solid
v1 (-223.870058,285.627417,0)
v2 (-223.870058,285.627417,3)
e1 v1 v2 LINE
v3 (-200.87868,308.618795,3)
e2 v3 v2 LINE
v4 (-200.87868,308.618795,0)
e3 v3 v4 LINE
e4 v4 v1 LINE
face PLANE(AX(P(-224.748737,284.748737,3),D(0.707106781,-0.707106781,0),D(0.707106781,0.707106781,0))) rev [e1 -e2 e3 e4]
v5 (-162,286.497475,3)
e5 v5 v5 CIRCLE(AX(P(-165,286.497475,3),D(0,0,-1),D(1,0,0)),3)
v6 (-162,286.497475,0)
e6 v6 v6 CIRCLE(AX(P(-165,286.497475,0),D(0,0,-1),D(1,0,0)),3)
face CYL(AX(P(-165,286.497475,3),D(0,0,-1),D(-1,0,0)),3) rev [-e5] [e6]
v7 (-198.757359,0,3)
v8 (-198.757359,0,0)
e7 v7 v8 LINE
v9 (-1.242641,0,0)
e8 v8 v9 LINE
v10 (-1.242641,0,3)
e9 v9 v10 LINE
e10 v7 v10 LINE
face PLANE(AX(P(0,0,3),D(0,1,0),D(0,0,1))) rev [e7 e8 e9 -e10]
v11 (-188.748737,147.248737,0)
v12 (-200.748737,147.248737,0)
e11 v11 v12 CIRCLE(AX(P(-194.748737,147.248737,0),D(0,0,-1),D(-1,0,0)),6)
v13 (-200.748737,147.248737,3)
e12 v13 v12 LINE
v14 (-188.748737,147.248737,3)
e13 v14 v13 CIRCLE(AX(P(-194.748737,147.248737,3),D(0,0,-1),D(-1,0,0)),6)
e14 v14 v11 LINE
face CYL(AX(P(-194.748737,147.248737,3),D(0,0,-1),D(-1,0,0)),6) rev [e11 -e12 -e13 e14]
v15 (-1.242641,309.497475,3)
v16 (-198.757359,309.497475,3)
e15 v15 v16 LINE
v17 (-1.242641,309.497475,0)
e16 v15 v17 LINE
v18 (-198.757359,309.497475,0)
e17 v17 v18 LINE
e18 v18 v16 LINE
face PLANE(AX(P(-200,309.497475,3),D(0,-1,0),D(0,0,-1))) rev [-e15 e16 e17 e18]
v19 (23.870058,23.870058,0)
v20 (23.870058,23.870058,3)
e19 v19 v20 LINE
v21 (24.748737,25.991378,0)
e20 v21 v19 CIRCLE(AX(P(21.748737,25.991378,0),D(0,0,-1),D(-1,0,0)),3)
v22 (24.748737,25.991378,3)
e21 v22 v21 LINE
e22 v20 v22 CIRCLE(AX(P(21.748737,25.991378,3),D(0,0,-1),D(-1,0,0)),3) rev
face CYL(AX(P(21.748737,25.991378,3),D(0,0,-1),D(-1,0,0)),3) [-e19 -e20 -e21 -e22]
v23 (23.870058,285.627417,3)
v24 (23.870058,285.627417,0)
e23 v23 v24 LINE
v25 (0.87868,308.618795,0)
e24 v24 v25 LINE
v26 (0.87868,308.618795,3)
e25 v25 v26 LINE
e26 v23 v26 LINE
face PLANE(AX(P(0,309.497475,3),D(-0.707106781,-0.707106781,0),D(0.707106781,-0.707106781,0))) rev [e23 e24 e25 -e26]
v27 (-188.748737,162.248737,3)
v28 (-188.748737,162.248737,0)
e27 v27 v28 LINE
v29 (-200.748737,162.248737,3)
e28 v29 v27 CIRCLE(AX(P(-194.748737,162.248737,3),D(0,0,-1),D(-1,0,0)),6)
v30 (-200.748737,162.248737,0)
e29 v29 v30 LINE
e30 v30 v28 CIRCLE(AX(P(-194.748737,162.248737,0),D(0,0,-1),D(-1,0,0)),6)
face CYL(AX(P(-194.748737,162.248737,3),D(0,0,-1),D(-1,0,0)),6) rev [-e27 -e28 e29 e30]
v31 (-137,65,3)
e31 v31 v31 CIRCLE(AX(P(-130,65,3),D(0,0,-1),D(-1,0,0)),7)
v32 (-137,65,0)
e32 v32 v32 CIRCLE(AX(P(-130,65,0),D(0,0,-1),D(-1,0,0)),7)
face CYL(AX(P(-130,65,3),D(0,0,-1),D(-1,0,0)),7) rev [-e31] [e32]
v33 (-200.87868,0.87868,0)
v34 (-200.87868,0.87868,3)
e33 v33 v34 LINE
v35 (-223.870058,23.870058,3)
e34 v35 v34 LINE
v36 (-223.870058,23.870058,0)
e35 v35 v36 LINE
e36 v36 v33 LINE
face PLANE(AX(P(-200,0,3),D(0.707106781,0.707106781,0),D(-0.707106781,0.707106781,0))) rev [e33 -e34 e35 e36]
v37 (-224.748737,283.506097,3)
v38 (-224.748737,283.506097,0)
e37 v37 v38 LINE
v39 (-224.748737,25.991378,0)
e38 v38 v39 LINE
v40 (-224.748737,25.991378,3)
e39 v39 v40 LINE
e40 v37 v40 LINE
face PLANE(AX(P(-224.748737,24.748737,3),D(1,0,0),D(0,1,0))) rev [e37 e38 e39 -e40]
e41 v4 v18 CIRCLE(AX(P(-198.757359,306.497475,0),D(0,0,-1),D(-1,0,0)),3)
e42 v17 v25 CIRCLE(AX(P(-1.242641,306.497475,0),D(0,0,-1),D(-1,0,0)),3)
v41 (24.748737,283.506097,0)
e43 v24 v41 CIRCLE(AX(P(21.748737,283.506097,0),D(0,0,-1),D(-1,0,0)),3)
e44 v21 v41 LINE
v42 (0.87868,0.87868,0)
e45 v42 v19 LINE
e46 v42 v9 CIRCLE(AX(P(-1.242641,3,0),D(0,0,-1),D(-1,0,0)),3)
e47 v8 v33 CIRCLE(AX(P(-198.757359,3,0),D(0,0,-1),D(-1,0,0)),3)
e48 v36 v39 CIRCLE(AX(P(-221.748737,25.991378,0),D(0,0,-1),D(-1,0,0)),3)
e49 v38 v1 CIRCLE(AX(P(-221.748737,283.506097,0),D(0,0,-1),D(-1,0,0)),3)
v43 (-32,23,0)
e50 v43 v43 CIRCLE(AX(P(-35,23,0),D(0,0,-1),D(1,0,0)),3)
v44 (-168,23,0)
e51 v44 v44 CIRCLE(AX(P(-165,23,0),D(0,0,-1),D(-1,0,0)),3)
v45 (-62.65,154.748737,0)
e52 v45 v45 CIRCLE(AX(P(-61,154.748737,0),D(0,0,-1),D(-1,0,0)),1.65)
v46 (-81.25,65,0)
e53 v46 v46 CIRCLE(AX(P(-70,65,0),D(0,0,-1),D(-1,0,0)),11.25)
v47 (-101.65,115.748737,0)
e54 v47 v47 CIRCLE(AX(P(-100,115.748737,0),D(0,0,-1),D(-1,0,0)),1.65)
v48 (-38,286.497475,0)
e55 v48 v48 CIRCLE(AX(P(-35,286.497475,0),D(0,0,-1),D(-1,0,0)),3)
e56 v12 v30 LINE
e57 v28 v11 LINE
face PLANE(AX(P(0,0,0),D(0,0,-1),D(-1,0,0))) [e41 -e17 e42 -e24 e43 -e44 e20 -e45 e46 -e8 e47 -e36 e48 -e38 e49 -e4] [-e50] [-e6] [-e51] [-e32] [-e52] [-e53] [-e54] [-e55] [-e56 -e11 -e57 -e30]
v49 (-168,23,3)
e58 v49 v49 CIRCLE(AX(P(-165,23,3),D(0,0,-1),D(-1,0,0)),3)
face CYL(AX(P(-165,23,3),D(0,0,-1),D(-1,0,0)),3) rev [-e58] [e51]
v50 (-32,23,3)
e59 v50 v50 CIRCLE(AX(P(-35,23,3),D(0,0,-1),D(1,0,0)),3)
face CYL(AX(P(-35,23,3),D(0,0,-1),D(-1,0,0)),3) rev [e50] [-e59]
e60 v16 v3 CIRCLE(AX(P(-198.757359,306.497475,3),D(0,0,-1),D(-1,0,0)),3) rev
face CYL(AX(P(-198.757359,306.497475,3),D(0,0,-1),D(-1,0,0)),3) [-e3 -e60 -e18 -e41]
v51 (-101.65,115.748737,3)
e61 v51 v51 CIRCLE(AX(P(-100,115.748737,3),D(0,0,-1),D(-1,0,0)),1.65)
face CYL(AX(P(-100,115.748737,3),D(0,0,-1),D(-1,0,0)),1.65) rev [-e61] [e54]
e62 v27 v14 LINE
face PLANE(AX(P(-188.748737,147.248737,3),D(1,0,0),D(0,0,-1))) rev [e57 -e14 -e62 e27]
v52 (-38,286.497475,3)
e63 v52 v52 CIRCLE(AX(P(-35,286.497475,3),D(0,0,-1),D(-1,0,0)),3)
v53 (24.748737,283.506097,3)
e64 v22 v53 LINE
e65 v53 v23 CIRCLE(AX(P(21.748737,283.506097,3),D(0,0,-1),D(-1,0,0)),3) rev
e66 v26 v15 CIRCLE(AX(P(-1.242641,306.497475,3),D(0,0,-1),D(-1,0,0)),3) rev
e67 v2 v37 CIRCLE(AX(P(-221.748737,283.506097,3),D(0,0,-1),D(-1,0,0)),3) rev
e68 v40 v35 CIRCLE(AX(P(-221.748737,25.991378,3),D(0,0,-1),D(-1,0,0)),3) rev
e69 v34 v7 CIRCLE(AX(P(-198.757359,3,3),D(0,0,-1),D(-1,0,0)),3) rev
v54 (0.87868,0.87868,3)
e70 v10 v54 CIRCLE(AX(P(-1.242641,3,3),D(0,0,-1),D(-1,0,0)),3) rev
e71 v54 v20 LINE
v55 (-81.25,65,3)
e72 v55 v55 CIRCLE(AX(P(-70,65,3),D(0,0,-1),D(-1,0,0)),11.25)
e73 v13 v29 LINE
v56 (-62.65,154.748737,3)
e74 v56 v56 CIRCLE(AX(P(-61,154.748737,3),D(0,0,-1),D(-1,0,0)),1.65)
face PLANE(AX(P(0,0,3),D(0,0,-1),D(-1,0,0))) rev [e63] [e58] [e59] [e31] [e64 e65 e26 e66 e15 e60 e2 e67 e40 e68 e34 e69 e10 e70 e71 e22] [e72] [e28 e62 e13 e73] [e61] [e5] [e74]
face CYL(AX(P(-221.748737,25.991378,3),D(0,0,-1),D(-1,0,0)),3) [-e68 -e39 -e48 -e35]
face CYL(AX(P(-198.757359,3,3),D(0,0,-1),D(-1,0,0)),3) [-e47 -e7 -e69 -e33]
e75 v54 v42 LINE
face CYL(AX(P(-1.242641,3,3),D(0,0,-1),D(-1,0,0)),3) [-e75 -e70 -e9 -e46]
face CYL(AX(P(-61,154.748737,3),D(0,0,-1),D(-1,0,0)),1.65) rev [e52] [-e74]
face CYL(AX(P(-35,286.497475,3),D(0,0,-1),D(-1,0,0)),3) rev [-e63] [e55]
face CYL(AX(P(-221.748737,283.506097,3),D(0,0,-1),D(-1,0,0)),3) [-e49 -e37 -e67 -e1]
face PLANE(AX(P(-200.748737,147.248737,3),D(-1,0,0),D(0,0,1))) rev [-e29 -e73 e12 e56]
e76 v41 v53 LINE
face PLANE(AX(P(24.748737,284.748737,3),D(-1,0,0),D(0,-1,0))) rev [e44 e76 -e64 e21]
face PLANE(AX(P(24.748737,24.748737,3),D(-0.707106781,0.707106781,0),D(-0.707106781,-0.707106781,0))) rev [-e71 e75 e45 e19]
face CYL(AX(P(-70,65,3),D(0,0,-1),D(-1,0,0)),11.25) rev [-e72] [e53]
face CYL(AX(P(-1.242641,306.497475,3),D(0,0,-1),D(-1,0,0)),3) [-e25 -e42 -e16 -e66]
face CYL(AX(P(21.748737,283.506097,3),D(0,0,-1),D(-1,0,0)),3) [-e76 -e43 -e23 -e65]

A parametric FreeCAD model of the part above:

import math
import FreeCAD as App
import Part
import Sketcher

V = App.Vector
Q = App.Units.Quantity


def edges_at(feature, points):
    """Names of the edges that pass closest to the given points."""
    edges = feature.Shape.Edges
    near = lambda p: min(range(len(edges)), key=lambda i: edges[i].distToShape(Part.Vertex(*p))[0])
    return sorted({f"Edge{near(p) + 1}" for p in points})


def add_polygon(sketch, points):
    """Adds a closed chain of lines whose ends are joined by coincident constraints."""
    first, n = sketch.GeometryCount, len(points)
    for a, b in zip(points, points[1:] + points[:1]):
        sketch.addGeometry(Part.LineSegment(App.Vector(*a, 0), App.Vector(*b, 0)), False)
    for i in range(n):
        sketch.addConstraint(Sketcher.Constraint("Coincident", first + i, 2, first + (i + 1) % n, 1))

doc = App.newDocument("Part")
body = doc.addObject("PartDesign::Body", "Body")

sketch1 = body.newObject("Sketcher::SketchObject", "Sketch")
sketch1.AttachmentSupport = (doc.getObject("XY_Plane"), [""])
sketch1.MapMode = "FlatFace"
add_polygon(sketch1, [(-200, 0), (0, 0), (25, 25), (25, 285), (0, 309), (-200, 309), (-225, 285), (-225, 25)])
sketch1.addConstraint([
    Sketcher.Constraint("Horizontal", 0),
    Sketcher.Constraint("Vertical", 2),
    Sketcher.Constraint("Horizontal", 4),
    Sketcher.Constraint("Vertical", 6),
    Sketcher.Constraint("Coincident", 0, 2, -1, 1),
    Sketcher.Constraint("PointOnObject", 3, 2, -2),
    Sketcher.Constraint("Perpendicular", 1, 3),
    Sketcher.Constraint("Perpendicular", 3, 5),
    Sketcher.Constraint("Perpendicular", 5, 7),
    Sketcher.Constraint("Horizontal", 2, 2, 5, 2),
    Sketcher.Constraint("Horizontal", 1, 2, 6, 2),
    Sketcher.Constraint("Vertical", 4, 2, 7, 2),
    Sketcher.Constraint("DistanceX", 0, 1, 0, 2, Q("200 mm")),
    Sketcher.Constraint("DistanceY", 2, 1, 2, 2, Q("260 mm")),
    Sketcher.Constraint("Distance", 1, Q("35 mm")),
])
pad1 = body.newObject("PartDesign::Pad", "Pad")
pad1.Profile = sketch1
pad1.Length = 3
doc.recompute()

fillet = body.newObject("PartDesign::Fillet", "Fillet")
fillet.Base = (pad1, edges_at(pad1, [
    (0, 0, 1.5),
    (-200, 0, 1.5),
    (-224.749, 24.749, 1.5),
    (-224.749, 284.749, 1.5),
    (-200, 309.497, 1.5),
    (0, 309.497, 1.5),
    (24.749, 284.749, 1.5),
    (24.749, 24.749, 1.5),
]))
fillet.Radius = 3

sketch2 = body.newObject("Sketcher::SketchObject", "Sketch001")
sketch2.AttachmentSupport = (doc.getObject("XY_Plane"), [""])
sketch2.MapMode = "FlatFace"
sketch2.addGeometry([
    Part.Circle(V(-35, 286.5, 0), V(0, 0, 1), 3),
    Part.Circle(V(-165, 286.5, 0), V(0, 0, 1), 3),
    Part.Circle(V(-165, 23, 0), V(0, 0, 1), 3),
    Part.Circle(V(-35, 23, 0), V(0, 0, 1), 3),
], False)
sketch2.addConstraint([
    Sketcher.Constraint("Equal", 0, 1),
    Sketcher.Constraint("Equal", 1, 2),
    Sketcher.Constraint("Equal", 2, 3),
    Sketcher.Constraint("Horizontal", 0, 3, 1, 3),
    Sketcher.Constraint("Horizontal", 2, 3, 3, 3),
    Sketcher.Constraint("Vertical", 1, 3, 2, 3),
    Sketcher.Constraint("Vertical", 0, 3, 3, 3),
    Sketcher.Constraint("Diameter", 0, Q("6 mm")),
    Sketcher.Constraint("DistanceX", 0, 3, -1, 1, Q("35 mm")),
    Sketcher.Constraint("DistanceX", 1, 3, -1, 1, Q("165 mm")),
    Sketcher.Constraint("DistanceY", -1, 1, 2, 3, Q("23 mm")),
    Sketcher.Constraint("DistanceY", -1, 1, 0, 3, Q("286.497475 mm")),
])
pocket1 = body.newObject("PartDesign::Pocket", "Pocket")
pocket1.Profile = sketch2
pocket1.Type = "ThroughAll"
pocket1.Reversed = True

sketch3 = body.newObject("Sketcher::SketchObject", "Sketch002")
sketch3.AttachmentSupport = (doc.getObject("XY_Plane"), [""])
sketch3.MapMode = "FlatFace"
sketch3.addGeometry([
    Part.Circle(V(-61, 154.7, 0), V(0, 0, 1), 1.6),
    Part.Circle(V(-100, 115.7, 0), V(0, 0, 1), 1.6),
], False)
sketch3.addConstraint([
    Sketcher.Constraint("Equal", 0, 1),
    Sketcher.Constraint("Diameter", 0, Q("3.3 mm")),
    Sketcher.Constraint("DistanceX", 0, 3, -1, 1, Q("61 mm")),
    Sketcher.Constraint("DistanceX", 1, 3, -1, 1, Q("100 mm")),
    Sketcher.Constraint("DistanceY", 1, 3, 0, 3, Q("39 mm")),
    Sketcher.Constraint("DistanceY", -1, 1, 0, 3, Q("154.748737 mm")),
])
pocket2 = body.newObject("PartDesign::Pocket", "Pocket001")
pocket2.Profile = sketch3
pocket2.Type = "ThroughAll"
pocket2.Reversed = True

sketch4 = body.newObject("Sketcher::SketchObject", "Sketch003")
sketch4.AttachmentSupport = (doc.getObject("XY_Plane"), [""])
sketch4.MapMode = "FlatFace"
sketch4.addGeometry(Part.Circle(V(-70, 65, 0), V(0, 0, 1), 11), False)
sketch4.addConstraint([
    Sketcher.Constraint("Diameter", 0, Q("22.5 mm")),
    Sketcher.Constraint("DistanceX", 0, 3, -1, 1, Q("70 mm")),
    Sketcher.Constraint("DistanceY", -1, 1, 0, 3, Q("65 mm")),
])
pocket3 = body.newObject("PartDesign::Pocket", "Pocket002")
pocket3.Profile = sketch4
pocket3.Type = "ThroughAll"
pocket3.Reversed = True

sketch5 = body.newObject("Sketcher::SketchObject", "Sketch004")
sketch5.AttachmentSupport = (doc.getObject("XY_Plane"), [""])
sketch5.MapMode = "FlatFace"
sketch5.addGeometry(Part.Circle(V(-130, 65, 0), V(0, 0, 1), 7), False)
sketch5.addConstraint([
    Sketcher.Constraint("Diameter", 0, Q("14 mm")),
    Sketcher.Constraint("DistanceX", 0, 3, -1, 1, Q("130 mm")),
    Sketcher.Constraint("DistanceY", -1, 1, 0, 3, Q("65 mm")),
])
pocket4 = body.newObject("PartDesign::Pocket", "Pocket003")
pocket4.Profile = sketch5
pocket4.Type = "ThroughAll"
pocket4.Reversed = True

sketch6 = body.newObject("Sketcher::SketchObject", "Sketch005")
sketch6.AttachmentSupport = (doc.getObject("XY_Plane"), [""])
sketch6.MapMode = "FlatFace"
sketch6.addGeometry([
    Part.LineSegment(V(-189, 162, 0), V(-189, 147, 0)),
    Part.ArcOfCircle(Part.Circle(V(-195, 147, 0), V(0, 0, 1), 6), math.radians(180), math.radians(360)),
    Part.LineSegment(V(-201, 147, 0), V(-201, 162, 0)),
    Part.ArcOfCircle(Part.Circle(V(-195, 162, 0), V(0, 0, 1), 6), math.radians(0), math.radians(180)),
], False)
sketch6.addConstraint([
    Sketcher.Constraint("Tangent", 0, 2, 1, 2),
    Sketcher.Constraint("Tangent", 1, 1, 2, 1),
    Sketcher.Constraint("Tangent", 2, 2, 3, 2),
    Sketcher.Constraint("Tangent", 3, 1, 0, 1),
    Sketcher.Constraint("Vertical", 0),
    Sketcher.Constraint("Vertical", 2),
    Sketcher.Constraint("Radius", 1, Q("6 mm")),
    Sketcher.Constraint("DistanceY", 0, 2, 0, 1, Q("15 mm")),
    Sketcher.Constraint("DistanceX", 1, 3, -1, 1, Q("194.748737 mm")),
    Sketcher.Constraint("DistanceY", -1, 1, 1, 3, Q("147.248737 mm")),
])
pocket5 = body.newObject("PartDesign::Pocket", "Pocket004")
pocket5.Profile = sketch6
pocket5.Type = "ThroughAll"
pocket5.Reversed = True

doc.recompute()
